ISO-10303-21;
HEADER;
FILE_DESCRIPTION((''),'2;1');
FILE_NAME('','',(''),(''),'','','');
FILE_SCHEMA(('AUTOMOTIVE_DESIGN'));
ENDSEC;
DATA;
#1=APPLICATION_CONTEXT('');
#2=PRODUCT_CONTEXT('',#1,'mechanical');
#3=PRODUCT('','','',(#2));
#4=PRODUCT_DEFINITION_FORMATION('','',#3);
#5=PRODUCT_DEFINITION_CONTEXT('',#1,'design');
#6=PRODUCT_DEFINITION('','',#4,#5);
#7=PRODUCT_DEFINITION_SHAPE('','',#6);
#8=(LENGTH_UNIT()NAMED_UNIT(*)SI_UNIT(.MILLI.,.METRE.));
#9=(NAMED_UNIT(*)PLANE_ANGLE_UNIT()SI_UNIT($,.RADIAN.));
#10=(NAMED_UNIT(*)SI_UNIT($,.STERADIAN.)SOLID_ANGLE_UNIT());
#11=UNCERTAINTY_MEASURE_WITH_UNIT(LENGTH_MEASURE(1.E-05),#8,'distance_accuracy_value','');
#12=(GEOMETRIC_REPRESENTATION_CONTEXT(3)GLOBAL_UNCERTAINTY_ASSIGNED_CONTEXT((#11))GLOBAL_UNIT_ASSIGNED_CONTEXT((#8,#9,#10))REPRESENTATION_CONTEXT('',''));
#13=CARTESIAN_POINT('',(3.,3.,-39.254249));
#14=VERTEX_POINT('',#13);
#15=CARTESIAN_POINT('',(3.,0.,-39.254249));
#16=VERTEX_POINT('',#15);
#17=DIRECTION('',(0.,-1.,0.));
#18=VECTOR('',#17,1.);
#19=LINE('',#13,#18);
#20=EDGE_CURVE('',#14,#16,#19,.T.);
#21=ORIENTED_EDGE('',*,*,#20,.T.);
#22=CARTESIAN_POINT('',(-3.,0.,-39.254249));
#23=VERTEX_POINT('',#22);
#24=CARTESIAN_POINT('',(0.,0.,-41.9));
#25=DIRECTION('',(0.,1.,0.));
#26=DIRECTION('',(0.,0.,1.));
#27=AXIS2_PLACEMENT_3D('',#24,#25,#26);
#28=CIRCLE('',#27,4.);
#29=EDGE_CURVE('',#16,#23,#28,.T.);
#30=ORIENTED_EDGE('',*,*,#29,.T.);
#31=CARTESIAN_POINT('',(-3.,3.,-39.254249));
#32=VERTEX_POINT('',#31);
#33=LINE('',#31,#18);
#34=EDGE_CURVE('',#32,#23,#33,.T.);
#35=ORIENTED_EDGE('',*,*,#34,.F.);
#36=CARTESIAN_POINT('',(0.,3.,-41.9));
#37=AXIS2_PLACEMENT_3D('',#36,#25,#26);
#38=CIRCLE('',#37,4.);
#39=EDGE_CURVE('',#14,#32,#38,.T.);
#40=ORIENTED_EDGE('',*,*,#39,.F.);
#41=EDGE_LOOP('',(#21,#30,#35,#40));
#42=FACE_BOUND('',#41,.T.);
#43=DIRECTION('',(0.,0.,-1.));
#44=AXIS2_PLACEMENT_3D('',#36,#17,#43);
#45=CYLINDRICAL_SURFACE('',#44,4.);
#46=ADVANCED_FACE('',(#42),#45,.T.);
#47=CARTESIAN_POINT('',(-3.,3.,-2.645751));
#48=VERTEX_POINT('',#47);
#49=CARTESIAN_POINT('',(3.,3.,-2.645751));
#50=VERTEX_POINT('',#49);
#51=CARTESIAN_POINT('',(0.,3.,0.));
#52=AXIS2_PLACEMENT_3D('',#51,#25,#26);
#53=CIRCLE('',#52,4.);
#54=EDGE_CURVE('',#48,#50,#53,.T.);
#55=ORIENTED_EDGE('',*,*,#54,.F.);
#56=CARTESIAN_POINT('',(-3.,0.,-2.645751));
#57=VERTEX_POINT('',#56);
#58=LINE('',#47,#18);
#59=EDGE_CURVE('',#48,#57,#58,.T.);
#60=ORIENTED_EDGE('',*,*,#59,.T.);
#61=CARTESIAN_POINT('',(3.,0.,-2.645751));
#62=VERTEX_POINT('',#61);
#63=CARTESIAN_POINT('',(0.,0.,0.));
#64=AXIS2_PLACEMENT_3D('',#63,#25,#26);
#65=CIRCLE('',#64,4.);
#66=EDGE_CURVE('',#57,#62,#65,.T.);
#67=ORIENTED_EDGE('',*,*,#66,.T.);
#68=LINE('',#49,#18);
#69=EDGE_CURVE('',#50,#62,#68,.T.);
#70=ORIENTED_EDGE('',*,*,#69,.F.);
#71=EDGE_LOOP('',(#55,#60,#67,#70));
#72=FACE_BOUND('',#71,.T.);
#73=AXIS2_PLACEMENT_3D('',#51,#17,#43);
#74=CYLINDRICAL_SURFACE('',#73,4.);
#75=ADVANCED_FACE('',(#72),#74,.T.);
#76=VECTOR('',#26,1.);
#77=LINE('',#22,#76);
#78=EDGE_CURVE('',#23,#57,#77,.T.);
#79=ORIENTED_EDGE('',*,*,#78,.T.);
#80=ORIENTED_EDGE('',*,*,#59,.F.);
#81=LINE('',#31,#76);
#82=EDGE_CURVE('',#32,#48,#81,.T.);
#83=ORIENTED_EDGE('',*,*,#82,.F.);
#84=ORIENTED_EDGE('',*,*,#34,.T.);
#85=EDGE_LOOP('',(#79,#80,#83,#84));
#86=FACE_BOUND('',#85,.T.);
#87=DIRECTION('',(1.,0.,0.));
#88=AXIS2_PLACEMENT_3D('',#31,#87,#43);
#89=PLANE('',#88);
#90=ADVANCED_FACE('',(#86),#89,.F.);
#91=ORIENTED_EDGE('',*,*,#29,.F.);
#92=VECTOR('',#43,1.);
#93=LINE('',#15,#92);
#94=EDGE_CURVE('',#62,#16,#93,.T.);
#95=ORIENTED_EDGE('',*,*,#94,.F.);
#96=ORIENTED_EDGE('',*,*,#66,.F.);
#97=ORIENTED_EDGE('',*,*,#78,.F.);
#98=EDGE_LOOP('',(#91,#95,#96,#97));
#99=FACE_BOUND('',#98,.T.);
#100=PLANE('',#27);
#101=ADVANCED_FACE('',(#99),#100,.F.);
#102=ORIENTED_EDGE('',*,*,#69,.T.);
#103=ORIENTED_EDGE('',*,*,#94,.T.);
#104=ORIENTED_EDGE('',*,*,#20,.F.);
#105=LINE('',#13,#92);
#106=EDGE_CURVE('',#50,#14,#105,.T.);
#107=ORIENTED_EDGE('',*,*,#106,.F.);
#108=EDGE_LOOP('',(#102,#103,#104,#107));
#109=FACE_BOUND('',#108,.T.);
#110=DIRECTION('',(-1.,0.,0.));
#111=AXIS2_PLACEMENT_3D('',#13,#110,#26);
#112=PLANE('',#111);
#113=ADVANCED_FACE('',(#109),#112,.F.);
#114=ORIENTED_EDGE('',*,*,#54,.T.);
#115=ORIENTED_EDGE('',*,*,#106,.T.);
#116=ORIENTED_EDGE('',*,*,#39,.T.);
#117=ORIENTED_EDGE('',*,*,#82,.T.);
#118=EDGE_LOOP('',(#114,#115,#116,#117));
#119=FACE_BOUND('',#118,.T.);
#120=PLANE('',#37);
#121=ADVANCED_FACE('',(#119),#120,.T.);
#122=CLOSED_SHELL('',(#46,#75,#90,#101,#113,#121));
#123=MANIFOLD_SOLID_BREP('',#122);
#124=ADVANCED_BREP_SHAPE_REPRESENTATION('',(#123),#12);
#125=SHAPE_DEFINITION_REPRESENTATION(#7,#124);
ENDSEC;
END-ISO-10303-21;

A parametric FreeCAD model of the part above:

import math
import FreeCAD as App
import Part
import Sketcher

V = App.Vector

doc = App.newDocument("Part")
body = doc.addObject("PartDesign::Body", "Body")

# Sketch on XZ plane
sketch1 = doc.addObject("Sketcher::SketchObject", "Sketch")
body.addObject(sketch1)
sketch1.AttachmentSupport = (doc.XZ_Plane, [""])
sketch1.MapMode = "FlatFace"
sketch1.addGeometry(Part.LineSegment(V(-3, -39.3, 0), V(-3, -2.6, 0)), False)
sketch1.addGeometry(Part.ArcOfCircle(Part.Circle(V(0, 0, 0), V(0, 0, 1), 4), math.radians(-41), math.radians(221)), False)
sketch1.addGeometry(Part.LineSegment(V(3, -2.6, 0), V(3, -39.3, 0)), False)
sketch1.addGeometry(Part.ArcOfCircle(Part.Circle(V(0, -41.9, 0), V(0, 0, 1), 4), math.radians(139), math.radians(401)), False)
sketch1.addConstraint(Sketcher.Constraint("Coincident", 0, 2, 1, 2))
sketch1.addConstraint(Sketcher.Constraint("Coincident", 1, 1, 2, 1))
sketch1.addConstraint(Sketcher.Constraint("Coincident", 2, 2, 3, 2))
sketch1.addConstraint(Sketcher.Constraint("Coincident", 3, 1, 0, 1))
sketch1.addConstraint(Sketcher.Constraint("Vertical", 0))
sketch1.addConstraint(Sketcher.Constraint("Vertical", 2))
sketch1.addConstraint(Sketcher.Constraint("Coincident", 1, 3, -1, 1))
sketch1.addConstraint(Sketcher.Constraint("Equal", 1, 3))
sketch1.addConstraint(Sketcher.Constraint("Symmetric", 2, 2, 3, 1, -2))
sketch1.addConstraint(Sketcher.Constraint("Radius", 1, 4.0))
sketch1.addConstraint(Sketcher.Constraint("DistanceX", 0, 2, -1, 1, 3.0))
sketch1.addConstraint(Sketcher.Constraint("DistanceY", 3, 3, -1, 1, 41.9))
pad1 = doc.addObject("PartDesign::Pad", "Pad")
body.addObject(pad1)
pad1.Profile = sketch1
pad1.Length = 3
pad1.Reversed = True

doc.recompute()
